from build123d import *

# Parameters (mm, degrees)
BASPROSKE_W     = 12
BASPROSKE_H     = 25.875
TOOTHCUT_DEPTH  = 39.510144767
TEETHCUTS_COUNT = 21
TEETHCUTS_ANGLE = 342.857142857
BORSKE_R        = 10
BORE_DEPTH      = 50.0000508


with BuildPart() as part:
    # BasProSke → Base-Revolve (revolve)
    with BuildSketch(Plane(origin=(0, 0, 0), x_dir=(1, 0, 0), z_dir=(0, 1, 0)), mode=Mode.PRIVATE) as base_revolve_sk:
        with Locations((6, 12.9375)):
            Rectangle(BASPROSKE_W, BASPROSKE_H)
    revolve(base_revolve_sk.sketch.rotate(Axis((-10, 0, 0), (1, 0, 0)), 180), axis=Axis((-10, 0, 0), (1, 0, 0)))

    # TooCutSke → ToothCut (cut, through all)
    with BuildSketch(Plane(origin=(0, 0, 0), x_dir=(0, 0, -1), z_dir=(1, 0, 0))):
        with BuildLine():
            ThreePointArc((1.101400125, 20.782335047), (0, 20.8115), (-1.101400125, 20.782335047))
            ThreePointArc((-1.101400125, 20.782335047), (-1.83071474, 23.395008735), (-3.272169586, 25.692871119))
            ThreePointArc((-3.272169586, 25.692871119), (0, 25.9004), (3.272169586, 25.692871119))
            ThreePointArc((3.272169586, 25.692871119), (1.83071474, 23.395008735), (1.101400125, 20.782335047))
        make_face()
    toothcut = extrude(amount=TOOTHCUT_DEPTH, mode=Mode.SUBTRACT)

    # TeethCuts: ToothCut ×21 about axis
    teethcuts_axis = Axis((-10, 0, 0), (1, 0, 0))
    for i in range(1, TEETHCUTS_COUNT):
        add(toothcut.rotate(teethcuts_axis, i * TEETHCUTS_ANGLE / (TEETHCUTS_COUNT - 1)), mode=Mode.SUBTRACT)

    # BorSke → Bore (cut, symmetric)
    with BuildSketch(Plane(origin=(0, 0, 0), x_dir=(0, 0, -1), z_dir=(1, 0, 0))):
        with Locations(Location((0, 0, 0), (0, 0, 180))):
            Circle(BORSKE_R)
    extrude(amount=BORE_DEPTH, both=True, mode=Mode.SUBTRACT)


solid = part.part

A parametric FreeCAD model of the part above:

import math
import FreeCAD as App
import Part
import Sketcher
Q = App.Units.Quantity


def add_polygon(sketch, points):
    """Adds a closed chain of lines whose ends are joined by coincident constraints."""
    first, n = sketch.GeometryCount, len(points)
    for a, b in zip(points, points[1:] + points[:1]):
        sketch.addGeometry(Part.LineSegment(App.Vector(*a, 0), App.Vector(*b, 0)), False)
    for i in range(n):
        sketch.addConstraint(Sketcher.Constraint("Coincident", first + i, 2, first + (i + 1) % n, 1))

doc = App.newDocument("Part")
body = doc.addObject("PartDesign::Body", "Body")

# Sketch on XZ plane
sketch1 = body.newObject("Sketcher::SketchObject", "Sketch")
sketch1.AttachmentSupport = (doc.getObject("XZ_Plane"), [""])
sketch1.MapMode = "FlatFace"
add_polygon(sketch1, [(0, -26), (0, 0), (12, 0), (12, -26)])  # lines 0-3
sketch1.addConstraint([
    Sketcher.Constraint("Vertical", 0),
    Sketcher.Constraint("Horizontal", 1),
    Sketcher.Constraint("Vertical", 2),
    Sketcher.Constraint("Horizontal", 3),
    Sketcher.Constraint("Coincident", 0, 2, -1, 1),
    Sketcher.Constraint("DistanceX", 1, 1, 1, 2, Q("12 mm")),
    Sketcher.Constraint("DistanceY", 0, 1, 0, 2, Q("25.875 mm")),
])
revolution = body.newObject("PartDesign::Revolution", "Revolution")
revolution.Profile = sketch1
revolution.ReferenceAxis = (sketch1, ["H_Axis"])
revolution.Angle = 360

# Sketch on YZ plane
sketch2 = body.newObject("Sketcher::SketchObject", "Sketch001")
sketch2.AttachmentSupport = (doc.getObject("YZ_Plane"), [""])
sketch2.MapMode = "FlatFace"
sketch2.addGeometry([
    Part.ArcOfCircle(Part.Circle(App.Vector(0, 0, 0), App.Vector(0, 0, 1), 20.8), math.radians(-3.03), math.radians(3.03)),
    Part.ArcOfCircle(Part.Circle(App.Vector(19.6, -10.5, 0), App.Vector(0, 0, 1), 9.4), math.radians(50), math.radians(83)),
    Part.ArcOfCircle(Part.Circle(App.Vector(0, 0, 0), App.Vector(0, 0, 1), 25.9), math.radians(-7.26), math.radians(7.26)),
    Part.ArcOfCircle(Part.Circle(App.Vector(19.6, 10.5, 0), App.Vector(0, 0, 1), 9.4), math.radians(-83), math.radians(-50)),
], False)
sketch2.addConstraint([
    Sketcher.Constraint("Coincident", 0, 1, 1, 2),
    Sketcher.Constraint("Coincident", 1, 1, 2, 1),
    Sketcher.Constraint("Coincident", 2, 2, 3, 2),
    Sketcher.Constraint("Coincident", 3, 1, 0, 2),
    Sketcher.Constraint("Coincident", 0, 3, -1, 1),
    Sketcher.Constraint("Coincident", 2, 3, -1, 1),
    Sketcher.Constraint("Equal", 1, 3),
    Sketcher.Constraint("Symmetric", 1, 3, 3, 3, -1),
    Sketcher.Constraint("Radius", 1, Q("9.45 mm")),
    Sketcher.Constraint("Radius", 0, Q("20.8115 mm")),
    Sketcher.Constraint("Radius", 2, Q("25.9004 mm")),
    Sketcher.Constraint("DistanceY", 0, 1, -1, 1, Q("1.1014 mm")),
    Sketcher.Constraint("DistanceX", -1, 1, 1, 3, Q("19.574191 mm")),
])
pocket1 = body.newObject("PartDesign::Pocket", "Pocket")
pocket1.Profile = sketch2
pocket1.Type = "ThroughAll"
pocket1.Reversed = True
doc.recompute()

polarpattern = body.newObject("PartDesign::PolarPattern", "PolarPattern")
polarpattern.Originals = [pocket1]
polarpattern.Axis = (doc.getObject("X_Axis"), [""])
polarpattern.Angle = 360
polarpattern.Occurrences = 21
body.Tip = polarpattern

# Sketch on YZ plane
sketch3 = body.newObject("Sketcher::SketchObject", "Sketch002")
sketch3.AttachmentSupport = (doc.getObject("YZ_Plane"), [""])
sketch3.MapMode = "FlatFace"
sketch3.addGeometry(Part.Circle(App.Vector(0, 0, 0), App.Vector(0, 0, 1), 10), False)
sketch3.addConstraint([
    Sketcher.Constraint("Coincident", 0, 3, -1, 1),
    Sketcher.Constraint("Diameter", 0, Q("20 mm")),
])
pocket2 = body.newObject("PartDesign::Pocket", "Pocket001")
pocket2.Profile = sketch3
pocket2.Length = 100.000102
pocket2.Midplane = True

doc.recompute()
